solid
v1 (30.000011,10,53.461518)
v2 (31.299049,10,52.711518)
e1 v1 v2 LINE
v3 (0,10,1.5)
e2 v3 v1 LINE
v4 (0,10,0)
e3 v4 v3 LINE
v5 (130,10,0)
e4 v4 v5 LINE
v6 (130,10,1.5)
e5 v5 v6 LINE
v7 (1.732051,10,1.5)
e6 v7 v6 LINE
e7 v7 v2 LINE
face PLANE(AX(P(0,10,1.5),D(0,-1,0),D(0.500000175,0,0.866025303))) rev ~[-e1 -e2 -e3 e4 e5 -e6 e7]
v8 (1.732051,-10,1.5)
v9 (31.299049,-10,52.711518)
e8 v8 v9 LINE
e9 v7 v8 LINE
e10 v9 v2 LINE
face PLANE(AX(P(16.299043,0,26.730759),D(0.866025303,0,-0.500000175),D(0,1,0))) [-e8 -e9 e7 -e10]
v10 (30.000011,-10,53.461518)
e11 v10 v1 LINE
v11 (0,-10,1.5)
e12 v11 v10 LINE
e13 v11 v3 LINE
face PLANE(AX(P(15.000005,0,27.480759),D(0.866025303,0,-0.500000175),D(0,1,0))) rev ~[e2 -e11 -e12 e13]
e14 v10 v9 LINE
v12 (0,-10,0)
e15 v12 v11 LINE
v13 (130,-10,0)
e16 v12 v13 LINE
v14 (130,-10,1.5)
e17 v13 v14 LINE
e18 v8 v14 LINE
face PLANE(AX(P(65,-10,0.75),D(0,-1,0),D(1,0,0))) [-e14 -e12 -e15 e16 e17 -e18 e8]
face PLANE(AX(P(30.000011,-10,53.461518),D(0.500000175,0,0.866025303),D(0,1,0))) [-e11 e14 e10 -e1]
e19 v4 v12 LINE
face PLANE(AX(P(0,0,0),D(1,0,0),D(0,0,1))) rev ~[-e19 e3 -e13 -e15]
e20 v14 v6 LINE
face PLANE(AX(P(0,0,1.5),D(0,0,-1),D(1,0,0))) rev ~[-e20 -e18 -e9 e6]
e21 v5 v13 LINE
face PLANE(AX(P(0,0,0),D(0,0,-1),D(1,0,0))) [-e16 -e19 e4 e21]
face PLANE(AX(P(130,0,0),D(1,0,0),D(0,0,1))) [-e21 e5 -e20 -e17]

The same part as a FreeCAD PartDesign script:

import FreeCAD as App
import Part
import Sketcher
from FreeCAD import Vector
Q = App.Units.Quantity


def add_polygon(sketch, points):
    """Adds a closed chain of lines whose ends are joined by coincident constraints."""
    first, n = sketch.GeometryCount, len(points)
    for a, b in zip(points, points[1:] + points[:1]):
        sketch.addGeometry(Part.LineSegment(App.Vector(*a, 0), App.Vector(*b, 0)), False)
    for i in range(n):
        sketch.addConstraint(Sketcher.Constraint("Coincident", first + i, 2, first + (i + 1) % n, 1))

doc = App.newDocument("Part")
body = doc.addObject("PartDesign::Body", "Body")

# Sketch on XZ plane
sketch1 = body.newObject("Sketcher::SketchObject", "Sketch")
sketch1.AttachmentSupport = (doc.getObject("XZ_Plane"), [""])
sketch1.MapMode = "FlatFace"
add_polygon(sketch1, [(0, 1.5), (0, 0), (130, 0), (130, 1.5)])  # lines 0-3
sketch1.addConstraint(Sketcher.Constraint("Vertical", 0))
sketch1.addConstraint(Sketcher.Constraint("Horizontal", 1))
sketch1.addConstraint(Sketcher.Constraint("Vertical", 2))
sketch1.addConstraint(Sketcher.Constraint("Horizontal", 3))
sketch1.addConstraint(Sketcher.Constraint("Coincident", 0, 2, -1, 1))
sketch1.addConstraint(Sketcher.Constraint("DistanceX", 1, 1, 1, 2, Q("130 mm")))
sketch1.addConstraint(Sketcher.Constraint("DistanceY", 0, 2, 0, 1, Q("1.5 mm")))
pad1 = body.newObject("PartDesign::Pad", "Pad")
pad1.Profile = sketch1
pad1.Length = 20
pad1.Midplane = True

# Sketch on an angled plane
sketch2 = body.newObject("Sketcher::SketchObject", "Sketch001")
sketch2.Placement = App.Placement(Vector(-0.649519, 0, 0.375), App.Rotation(Vector(0, 1, 0), Vector(0.500000175, 0, 0.866025303), Vector(0.866025303, 0, -0.500000175), "ZXY"))
add_polygon(sketch2, [(-10, 61.299038), (-10, 1.299038), (10, 1.299038), (10, 61.299038)])  # lines 0-3
sketch2.addConstraint(Sketcher.Constraint("Vertical", 0))
sketch2.addConstraint(Sketcher.Constraint("Horizontal", 1))
sketch2.addConstraint(Sketcher.Constraint("Vertical", 2))
sketch2.addConstraint(Sketcher.Constraint("Horizontal", 3))
sketch2.addConstraint(Sketcher.Constraint("DistanceX", 1, 1, 1, 2, Q("20 mm")))
sketch2.addConstraint(Sketcher.Constraint("DistanceY", 0, 2, 0, 1, Q("60 mm")))
sketch2.addConstraint(Sketcher.Constraint("DistanceX", 0, 2, -1, 1, Q("10 mm")))
sketch2.addConstraint(Sketcher.Constraint("DistanceY", -1, 1, 0, 2, Q("1.299038 mm")))
pad2 = body.newObject("PartDesign::Pad", "Pad001")
pad2.Profile = sketch2
pad2.Length = 1.5

doc.recompute()
